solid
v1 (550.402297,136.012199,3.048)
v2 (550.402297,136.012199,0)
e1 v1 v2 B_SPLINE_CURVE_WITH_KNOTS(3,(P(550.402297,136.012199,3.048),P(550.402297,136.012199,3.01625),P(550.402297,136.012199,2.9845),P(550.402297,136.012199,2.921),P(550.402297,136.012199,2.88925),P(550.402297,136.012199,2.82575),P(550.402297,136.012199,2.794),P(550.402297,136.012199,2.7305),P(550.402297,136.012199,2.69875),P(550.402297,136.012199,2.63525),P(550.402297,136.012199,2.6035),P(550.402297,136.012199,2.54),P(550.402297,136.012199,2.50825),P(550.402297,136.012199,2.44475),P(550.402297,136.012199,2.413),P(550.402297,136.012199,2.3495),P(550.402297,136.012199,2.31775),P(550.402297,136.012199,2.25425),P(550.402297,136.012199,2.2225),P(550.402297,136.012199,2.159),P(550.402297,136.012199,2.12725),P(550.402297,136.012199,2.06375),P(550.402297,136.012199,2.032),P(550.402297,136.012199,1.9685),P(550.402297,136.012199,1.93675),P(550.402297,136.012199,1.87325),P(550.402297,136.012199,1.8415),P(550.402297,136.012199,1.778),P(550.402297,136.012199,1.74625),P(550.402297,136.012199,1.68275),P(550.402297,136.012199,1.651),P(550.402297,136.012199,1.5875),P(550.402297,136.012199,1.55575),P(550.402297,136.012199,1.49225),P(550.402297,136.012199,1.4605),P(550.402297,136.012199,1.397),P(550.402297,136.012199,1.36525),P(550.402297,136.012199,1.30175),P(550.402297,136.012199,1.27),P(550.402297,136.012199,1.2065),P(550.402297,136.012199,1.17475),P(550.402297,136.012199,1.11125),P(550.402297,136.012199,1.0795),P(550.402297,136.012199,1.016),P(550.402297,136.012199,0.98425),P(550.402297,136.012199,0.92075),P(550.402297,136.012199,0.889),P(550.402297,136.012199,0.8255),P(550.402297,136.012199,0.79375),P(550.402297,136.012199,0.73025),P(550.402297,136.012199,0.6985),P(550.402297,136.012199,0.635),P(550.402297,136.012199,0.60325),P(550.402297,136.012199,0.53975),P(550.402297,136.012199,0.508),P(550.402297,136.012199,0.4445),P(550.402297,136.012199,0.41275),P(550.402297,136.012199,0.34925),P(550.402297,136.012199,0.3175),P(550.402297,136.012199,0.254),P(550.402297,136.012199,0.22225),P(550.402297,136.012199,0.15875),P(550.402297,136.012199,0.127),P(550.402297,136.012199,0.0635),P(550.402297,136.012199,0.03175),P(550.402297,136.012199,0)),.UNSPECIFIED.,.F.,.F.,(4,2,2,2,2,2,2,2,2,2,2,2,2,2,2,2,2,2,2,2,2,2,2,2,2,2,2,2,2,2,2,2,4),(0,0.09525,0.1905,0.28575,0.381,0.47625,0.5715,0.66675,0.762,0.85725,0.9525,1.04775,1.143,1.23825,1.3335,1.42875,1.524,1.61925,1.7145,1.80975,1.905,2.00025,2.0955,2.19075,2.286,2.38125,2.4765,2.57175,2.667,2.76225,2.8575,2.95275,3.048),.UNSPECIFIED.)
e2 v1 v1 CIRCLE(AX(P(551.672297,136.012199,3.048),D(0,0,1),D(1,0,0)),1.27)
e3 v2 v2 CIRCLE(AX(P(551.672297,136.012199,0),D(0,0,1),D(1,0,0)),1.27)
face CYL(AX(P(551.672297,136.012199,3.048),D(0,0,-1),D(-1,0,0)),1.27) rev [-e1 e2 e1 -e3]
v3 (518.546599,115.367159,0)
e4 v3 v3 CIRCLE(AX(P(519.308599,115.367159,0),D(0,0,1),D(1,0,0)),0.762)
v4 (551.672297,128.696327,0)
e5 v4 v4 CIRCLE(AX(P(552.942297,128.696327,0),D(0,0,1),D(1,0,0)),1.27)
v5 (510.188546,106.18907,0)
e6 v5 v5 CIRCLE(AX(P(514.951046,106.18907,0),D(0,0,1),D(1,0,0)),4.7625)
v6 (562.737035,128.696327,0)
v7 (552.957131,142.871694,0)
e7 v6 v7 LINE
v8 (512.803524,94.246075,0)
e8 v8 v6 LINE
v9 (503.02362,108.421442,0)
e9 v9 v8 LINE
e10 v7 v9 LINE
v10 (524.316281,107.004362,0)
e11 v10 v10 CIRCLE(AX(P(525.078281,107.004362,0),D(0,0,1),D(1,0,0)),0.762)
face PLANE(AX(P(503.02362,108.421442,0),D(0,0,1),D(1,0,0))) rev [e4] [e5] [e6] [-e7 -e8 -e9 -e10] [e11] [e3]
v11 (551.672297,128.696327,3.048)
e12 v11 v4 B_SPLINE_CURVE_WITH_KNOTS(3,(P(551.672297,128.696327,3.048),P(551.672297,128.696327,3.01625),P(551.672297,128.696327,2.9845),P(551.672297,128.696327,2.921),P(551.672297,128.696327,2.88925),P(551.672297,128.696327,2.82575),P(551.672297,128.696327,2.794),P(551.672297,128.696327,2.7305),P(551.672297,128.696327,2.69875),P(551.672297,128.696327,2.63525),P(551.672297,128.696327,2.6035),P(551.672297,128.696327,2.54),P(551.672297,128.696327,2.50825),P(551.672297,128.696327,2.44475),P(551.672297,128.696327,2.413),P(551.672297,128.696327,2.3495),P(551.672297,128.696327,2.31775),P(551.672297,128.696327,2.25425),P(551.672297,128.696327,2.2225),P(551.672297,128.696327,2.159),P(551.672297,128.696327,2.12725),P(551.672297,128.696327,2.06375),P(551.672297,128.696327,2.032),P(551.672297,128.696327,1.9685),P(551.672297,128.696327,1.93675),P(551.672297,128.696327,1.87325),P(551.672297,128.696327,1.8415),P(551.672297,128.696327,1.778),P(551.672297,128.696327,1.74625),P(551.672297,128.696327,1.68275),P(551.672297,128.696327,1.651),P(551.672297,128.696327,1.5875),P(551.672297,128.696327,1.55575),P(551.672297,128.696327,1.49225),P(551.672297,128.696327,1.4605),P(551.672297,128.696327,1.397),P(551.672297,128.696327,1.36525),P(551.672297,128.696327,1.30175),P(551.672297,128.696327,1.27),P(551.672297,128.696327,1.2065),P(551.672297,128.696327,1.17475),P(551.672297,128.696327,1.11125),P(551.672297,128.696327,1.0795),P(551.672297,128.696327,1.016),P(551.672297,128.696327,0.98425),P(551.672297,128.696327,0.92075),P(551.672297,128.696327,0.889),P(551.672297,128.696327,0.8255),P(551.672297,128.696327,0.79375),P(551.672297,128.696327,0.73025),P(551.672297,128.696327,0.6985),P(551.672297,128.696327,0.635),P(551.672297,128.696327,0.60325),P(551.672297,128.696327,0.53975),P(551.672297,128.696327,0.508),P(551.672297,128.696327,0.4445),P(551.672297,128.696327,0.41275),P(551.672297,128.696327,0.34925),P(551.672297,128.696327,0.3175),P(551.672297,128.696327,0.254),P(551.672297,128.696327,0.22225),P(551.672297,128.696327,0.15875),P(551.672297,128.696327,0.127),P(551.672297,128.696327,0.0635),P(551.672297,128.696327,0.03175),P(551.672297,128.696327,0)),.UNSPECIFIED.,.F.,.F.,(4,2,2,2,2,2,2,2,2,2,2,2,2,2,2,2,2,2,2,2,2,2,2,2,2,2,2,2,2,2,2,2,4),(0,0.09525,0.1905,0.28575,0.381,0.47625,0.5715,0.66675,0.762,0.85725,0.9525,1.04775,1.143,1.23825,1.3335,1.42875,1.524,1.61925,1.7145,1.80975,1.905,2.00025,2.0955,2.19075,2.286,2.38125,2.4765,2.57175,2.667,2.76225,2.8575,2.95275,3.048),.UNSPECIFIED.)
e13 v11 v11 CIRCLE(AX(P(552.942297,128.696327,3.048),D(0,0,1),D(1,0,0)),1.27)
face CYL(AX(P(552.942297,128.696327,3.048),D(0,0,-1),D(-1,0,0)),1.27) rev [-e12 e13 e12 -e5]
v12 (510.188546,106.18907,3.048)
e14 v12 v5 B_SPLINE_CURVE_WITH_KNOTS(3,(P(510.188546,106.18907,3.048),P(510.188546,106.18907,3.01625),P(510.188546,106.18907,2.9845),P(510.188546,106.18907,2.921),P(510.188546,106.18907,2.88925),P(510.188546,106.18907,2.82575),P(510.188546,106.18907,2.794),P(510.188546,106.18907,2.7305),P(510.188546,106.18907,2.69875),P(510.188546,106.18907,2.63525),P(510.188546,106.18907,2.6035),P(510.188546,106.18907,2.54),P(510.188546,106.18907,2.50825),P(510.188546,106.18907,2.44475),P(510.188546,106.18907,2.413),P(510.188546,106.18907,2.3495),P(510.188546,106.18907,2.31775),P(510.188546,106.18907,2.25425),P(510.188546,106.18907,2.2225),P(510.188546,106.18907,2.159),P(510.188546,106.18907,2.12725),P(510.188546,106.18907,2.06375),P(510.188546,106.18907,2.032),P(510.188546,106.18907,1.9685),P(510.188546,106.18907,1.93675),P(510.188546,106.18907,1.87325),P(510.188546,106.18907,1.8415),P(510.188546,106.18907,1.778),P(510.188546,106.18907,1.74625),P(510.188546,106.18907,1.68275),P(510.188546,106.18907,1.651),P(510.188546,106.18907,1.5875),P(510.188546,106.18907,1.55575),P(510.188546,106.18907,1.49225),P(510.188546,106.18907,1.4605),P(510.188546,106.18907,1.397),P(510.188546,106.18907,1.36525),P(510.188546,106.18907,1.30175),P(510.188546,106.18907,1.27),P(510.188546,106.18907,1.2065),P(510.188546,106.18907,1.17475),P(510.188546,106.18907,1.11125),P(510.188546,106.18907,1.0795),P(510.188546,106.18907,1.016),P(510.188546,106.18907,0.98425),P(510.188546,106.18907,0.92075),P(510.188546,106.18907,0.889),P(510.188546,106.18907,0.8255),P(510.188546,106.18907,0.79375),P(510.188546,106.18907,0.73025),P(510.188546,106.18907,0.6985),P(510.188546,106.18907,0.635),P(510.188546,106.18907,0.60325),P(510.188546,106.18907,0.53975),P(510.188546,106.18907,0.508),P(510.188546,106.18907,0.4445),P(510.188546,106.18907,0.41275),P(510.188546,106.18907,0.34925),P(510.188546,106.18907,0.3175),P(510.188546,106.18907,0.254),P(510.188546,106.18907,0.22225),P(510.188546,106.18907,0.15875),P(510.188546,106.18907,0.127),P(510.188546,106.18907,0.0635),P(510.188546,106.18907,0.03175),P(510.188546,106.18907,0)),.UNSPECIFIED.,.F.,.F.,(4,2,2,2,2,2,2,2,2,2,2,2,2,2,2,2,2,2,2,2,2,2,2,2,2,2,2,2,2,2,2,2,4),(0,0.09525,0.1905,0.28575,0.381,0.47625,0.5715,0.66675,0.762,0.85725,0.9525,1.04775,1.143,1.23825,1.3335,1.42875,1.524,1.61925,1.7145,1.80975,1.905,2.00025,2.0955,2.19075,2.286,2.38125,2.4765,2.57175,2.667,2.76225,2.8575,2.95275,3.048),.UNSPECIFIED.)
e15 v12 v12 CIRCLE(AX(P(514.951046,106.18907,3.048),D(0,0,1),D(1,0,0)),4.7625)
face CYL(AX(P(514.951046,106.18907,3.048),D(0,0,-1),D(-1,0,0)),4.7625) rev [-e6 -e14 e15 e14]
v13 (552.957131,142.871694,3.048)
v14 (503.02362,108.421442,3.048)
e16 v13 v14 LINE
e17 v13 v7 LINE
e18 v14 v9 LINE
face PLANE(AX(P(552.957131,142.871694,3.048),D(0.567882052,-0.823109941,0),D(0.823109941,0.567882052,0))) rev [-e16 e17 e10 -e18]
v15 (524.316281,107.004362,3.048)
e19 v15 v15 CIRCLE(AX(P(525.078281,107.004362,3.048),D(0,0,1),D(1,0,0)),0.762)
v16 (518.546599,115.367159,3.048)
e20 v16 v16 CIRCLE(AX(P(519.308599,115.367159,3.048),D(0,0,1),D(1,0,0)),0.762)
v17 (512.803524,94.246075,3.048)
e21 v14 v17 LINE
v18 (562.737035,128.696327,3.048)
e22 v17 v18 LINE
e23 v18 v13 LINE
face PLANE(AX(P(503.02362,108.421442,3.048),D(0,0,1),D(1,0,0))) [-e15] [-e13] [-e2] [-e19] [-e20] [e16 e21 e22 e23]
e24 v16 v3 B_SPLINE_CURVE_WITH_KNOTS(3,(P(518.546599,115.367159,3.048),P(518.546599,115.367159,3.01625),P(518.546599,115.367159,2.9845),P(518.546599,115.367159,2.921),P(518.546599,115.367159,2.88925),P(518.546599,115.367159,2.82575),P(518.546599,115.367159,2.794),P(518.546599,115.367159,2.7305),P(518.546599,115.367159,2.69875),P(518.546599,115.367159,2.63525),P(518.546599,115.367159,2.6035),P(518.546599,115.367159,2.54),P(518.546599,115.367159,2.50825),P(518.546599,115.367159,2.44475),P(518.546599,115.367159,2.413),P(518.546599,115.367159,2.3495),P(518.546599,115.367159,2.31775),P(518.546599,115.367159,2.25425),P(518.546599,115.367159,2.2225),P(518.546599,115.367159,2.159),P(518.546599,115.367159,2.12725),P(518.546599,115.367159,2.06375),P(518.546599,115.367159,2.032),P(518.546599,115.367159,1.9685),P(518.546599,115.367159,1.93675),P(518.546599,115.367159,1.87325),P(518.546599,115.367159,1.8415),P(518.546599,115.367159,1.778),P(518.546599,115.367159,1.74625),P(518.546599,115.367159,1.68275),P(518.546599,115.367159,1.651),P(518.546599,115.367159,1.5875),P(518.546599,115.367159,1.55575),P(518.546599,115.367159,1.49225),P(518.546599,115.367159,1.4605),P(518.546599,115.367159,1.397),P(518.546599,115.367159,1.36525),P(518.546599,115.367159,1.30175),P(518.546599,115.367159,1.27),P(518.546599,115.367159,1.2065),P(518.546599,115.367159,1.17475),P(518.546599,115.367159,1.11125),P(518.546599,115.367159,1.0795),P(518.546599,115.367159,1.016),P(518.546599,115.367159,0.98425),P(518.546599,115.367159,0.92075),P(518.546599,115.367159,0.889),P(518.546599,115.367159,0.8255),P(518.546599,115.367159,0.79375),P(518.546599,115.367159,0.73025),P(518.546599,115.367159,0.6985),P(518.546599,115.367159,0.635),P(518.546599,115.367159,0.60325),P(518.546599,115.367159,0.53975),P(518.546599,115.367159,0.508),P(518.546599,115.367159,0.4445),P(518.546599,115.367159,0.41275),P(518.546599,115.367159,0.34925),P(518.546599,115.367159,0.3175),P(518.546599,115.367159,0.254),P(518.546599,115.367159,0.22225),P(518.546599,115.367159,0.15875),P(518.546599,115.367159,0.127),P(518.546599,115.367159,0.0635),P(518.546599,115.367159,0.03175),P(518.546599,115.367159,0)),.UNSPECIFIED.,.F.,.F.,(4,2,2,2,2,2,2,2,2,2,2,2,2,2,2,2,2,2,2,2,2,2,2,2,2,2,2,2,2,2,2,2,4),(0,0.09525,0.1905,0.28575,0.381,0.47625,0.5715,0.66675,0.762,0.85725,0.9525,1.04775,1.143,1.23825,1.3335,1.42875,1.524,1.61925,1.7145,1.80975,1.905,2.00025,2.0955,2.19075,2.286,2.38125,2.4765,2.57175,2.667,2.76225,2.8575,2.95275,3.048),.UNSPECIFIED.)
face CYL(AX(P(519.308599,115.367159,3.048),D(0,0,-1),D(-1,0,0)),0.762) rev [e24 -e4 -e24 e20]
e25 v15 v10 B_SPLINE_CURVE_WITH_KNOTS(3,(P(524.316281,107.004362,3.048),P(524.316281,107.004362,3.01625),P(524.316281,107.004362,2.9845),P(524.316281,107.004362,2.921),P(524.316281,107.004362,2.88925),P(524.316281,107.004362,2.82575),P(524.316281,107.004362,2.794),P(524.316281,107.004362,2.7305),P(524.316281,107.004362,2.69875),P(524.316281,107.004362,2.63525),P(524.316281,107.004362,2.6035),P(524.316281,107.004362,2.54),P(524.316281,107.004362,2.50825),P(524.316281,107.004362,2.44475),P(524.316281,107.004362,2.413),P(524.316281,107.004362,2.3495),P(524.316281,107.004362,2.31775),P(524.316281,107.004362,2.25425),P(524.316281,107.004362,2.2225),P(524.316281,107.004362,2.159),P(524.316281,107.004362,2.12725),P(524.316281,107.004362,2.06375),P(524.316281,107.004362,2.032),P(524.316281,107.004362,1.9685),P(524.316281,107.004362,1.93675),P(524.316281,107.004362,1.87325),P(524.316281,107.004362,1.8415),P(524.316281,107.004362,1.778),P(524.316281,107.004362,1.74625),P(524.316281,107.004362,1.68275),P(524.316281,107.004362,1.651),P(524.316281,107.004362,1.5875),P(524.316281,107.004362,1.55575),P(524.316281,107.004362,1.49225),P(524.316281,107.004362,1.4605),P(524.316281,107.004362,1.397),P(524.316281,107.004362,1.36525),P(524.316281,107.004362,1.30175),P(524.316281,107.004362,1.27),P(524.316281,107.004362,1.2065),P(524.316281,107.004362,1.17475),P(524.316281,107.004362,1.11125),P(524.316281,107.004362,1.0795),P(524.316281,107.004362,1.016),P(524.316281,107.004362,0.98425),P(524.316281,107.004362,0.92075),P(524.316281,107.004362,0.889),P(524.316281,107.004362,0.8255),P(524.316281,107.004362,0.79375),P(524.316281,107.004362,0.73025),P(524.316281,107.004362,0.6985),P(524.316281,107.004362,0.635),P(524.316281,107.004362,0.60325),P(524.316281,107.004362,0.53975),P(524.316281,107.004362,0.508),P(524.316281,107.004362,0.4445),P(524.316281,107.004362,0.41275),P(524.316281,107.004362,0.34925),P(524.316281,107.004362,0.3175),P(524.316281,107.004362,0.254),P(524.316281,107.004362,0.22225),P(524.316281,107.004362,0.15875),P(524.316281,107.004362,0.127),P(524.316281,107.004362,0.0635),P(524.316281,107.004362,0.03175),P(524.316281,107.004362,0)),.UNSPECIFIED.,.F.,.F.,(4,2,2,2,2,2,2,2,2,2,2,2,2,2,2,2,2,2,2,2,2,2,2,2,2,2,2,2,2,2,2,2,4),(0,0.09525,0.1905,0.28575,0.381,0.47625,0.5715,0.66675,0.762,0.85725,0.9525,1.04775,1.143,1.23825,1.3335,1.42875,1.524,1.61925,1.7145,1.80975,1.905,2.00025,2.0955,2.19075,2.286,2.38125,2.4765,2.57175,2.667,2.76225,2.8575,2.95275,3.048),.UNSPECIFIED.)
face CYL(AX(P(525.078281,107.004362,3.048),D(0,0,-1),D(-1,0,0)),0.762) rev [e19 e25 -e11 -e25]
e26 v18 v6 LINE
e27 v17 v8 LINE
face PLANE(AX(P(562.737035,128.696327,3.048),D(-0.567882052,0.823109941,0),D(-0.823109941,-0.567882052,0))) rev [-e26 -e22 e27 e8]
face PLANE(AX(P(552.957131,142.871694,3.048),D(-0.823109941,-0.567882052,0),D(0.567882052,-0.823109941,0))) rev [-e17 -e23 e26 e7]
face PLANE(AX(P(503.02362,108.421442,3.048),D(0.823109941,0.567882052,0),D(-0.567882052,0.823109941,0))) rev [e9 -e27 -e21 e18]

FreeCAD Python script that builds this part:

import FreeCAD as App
import Part
import Sketcher

V = App.Vector
Q = App.Units.Quantity


def add_polygon(sketch, points):
    """Adds a closed chain of lines whose ends are joined by coincident constraints."""
    first, n = sketch.GeometryCount, len(points)
    for a, b in zip(points, points[1:] + points[:1]):
        sketch.addGeometry(Part.LineSegment(App.Vector(*a, 0), App.Vector(*b, 0)), False)
    for i in range(n):
        sketch.addConstraint(Sketcher.Constraint("Coincident", first + i, 2, first + (i + 1) % n, 1))

doc = App.newDocument("Part")
body = doc.addObject("PartDesign::Body", "Body")

sketch1 = body.newObject("Sketcher::SketchObject", "Sketch")
sketch1.AttachmentSupport = (doc.getObject("XY_Plane"), [""])
sketch1.MapMode = "FlatFace"
add_polygon(sketch1, [(562.7, 128.7), (553, 142.9), (503, 108.4), (512.8, 94.2)])
sketch1.addGeometry(Part.Circle(V(525.1, 107, 0), V(0, 0, 1), 0.8), False)
sketch1.addGeometry(Part.Circle(V(515, 106.2, 0), V(0, 0, 1), 4.8), False)
sketch1.addGeometry(Part.Circle(V(519.3, 115.4, 0), V(0, 0, 1), 0.8), False)
sketch1.addGeometry(Part.Circle(V(552.9, 128.7, 0), V(0, 0, 1), 1.3), False)
sketch1.addGeometry(Part.Circle(V(551.7, 136, 0), V(0, 0, 1), 1.3), False)
sketch1.addConstraint([
    Sketcher.Constraint("Equal", 4, 6),
    Sketcher.Constraint("Equal", 7, 8),
    Sketcher.Constraint("Perpendicular", 0, 1),
    Sketcher.Constraint("Perpendicular", 1, 2),
    Sketcher.Constraint("Perpendicular", 2, 3),
    Sketcher.Constraint("Horizontal", 7, 3, 3, 2),
    Sketcher.Constraint("Diameter", 7, Q("0.1 in")),
    Sketcher.Constraint("Diameter", 4, Q("0.06 in")),
    Sketcher.Constraint("Diameter", 5, Q("0.375 in")),
    Sketcher.Constraint("DistanceX", 8, 3, 7, 3, Q("0.05 in")),
    Sketcher.Constraint("DistanceX", -1, 1, 6, 3, 519.308599),
    Sketcher.Constraint("DistanceY", -1, 1, 8, 3, 136.012199),
    Sketcher.Constraint("Distance", 1, 60.664449),
    Sketcher.Constraint("DistanceX", -1, 1, 4, 3, 525.078281),
    Sketcher.Constraint("DistanceY", -1, 1, 5, 3, 106.18907),
    Sketcher.Constraint("DistanceY", -1, 1, 6, 3, 115.367159),
    Sketcher.Constraint("DistanceX", -1, 1, 0, 2, 552.957131),
    Sketcher.Constraint("DistanceX", -1, 1, 1, 2, 503.02362),
    Sketcher.Constraint("DistanceX", 5, 3, 7, 3, 37.991251),
    Sketcher.Constraint("DistanceY", 7, 3, 8, 3, 7.315872),
    Sketcher.Constraint("DistanceY", 4, 3, 0, 2, 35.867332),
    Sketcher.Constraint("DistanceX", 2, 2, 5, 3, 2.147521),
    Sketcher.Constraint("Distance", 0, 17.221717),
])
pad1 = body.newObject("PartDesign::Pad", "Pad")
pad1.Profile = sketch1
pad1.Length = Q("0.12 in")

doc.recompute()
